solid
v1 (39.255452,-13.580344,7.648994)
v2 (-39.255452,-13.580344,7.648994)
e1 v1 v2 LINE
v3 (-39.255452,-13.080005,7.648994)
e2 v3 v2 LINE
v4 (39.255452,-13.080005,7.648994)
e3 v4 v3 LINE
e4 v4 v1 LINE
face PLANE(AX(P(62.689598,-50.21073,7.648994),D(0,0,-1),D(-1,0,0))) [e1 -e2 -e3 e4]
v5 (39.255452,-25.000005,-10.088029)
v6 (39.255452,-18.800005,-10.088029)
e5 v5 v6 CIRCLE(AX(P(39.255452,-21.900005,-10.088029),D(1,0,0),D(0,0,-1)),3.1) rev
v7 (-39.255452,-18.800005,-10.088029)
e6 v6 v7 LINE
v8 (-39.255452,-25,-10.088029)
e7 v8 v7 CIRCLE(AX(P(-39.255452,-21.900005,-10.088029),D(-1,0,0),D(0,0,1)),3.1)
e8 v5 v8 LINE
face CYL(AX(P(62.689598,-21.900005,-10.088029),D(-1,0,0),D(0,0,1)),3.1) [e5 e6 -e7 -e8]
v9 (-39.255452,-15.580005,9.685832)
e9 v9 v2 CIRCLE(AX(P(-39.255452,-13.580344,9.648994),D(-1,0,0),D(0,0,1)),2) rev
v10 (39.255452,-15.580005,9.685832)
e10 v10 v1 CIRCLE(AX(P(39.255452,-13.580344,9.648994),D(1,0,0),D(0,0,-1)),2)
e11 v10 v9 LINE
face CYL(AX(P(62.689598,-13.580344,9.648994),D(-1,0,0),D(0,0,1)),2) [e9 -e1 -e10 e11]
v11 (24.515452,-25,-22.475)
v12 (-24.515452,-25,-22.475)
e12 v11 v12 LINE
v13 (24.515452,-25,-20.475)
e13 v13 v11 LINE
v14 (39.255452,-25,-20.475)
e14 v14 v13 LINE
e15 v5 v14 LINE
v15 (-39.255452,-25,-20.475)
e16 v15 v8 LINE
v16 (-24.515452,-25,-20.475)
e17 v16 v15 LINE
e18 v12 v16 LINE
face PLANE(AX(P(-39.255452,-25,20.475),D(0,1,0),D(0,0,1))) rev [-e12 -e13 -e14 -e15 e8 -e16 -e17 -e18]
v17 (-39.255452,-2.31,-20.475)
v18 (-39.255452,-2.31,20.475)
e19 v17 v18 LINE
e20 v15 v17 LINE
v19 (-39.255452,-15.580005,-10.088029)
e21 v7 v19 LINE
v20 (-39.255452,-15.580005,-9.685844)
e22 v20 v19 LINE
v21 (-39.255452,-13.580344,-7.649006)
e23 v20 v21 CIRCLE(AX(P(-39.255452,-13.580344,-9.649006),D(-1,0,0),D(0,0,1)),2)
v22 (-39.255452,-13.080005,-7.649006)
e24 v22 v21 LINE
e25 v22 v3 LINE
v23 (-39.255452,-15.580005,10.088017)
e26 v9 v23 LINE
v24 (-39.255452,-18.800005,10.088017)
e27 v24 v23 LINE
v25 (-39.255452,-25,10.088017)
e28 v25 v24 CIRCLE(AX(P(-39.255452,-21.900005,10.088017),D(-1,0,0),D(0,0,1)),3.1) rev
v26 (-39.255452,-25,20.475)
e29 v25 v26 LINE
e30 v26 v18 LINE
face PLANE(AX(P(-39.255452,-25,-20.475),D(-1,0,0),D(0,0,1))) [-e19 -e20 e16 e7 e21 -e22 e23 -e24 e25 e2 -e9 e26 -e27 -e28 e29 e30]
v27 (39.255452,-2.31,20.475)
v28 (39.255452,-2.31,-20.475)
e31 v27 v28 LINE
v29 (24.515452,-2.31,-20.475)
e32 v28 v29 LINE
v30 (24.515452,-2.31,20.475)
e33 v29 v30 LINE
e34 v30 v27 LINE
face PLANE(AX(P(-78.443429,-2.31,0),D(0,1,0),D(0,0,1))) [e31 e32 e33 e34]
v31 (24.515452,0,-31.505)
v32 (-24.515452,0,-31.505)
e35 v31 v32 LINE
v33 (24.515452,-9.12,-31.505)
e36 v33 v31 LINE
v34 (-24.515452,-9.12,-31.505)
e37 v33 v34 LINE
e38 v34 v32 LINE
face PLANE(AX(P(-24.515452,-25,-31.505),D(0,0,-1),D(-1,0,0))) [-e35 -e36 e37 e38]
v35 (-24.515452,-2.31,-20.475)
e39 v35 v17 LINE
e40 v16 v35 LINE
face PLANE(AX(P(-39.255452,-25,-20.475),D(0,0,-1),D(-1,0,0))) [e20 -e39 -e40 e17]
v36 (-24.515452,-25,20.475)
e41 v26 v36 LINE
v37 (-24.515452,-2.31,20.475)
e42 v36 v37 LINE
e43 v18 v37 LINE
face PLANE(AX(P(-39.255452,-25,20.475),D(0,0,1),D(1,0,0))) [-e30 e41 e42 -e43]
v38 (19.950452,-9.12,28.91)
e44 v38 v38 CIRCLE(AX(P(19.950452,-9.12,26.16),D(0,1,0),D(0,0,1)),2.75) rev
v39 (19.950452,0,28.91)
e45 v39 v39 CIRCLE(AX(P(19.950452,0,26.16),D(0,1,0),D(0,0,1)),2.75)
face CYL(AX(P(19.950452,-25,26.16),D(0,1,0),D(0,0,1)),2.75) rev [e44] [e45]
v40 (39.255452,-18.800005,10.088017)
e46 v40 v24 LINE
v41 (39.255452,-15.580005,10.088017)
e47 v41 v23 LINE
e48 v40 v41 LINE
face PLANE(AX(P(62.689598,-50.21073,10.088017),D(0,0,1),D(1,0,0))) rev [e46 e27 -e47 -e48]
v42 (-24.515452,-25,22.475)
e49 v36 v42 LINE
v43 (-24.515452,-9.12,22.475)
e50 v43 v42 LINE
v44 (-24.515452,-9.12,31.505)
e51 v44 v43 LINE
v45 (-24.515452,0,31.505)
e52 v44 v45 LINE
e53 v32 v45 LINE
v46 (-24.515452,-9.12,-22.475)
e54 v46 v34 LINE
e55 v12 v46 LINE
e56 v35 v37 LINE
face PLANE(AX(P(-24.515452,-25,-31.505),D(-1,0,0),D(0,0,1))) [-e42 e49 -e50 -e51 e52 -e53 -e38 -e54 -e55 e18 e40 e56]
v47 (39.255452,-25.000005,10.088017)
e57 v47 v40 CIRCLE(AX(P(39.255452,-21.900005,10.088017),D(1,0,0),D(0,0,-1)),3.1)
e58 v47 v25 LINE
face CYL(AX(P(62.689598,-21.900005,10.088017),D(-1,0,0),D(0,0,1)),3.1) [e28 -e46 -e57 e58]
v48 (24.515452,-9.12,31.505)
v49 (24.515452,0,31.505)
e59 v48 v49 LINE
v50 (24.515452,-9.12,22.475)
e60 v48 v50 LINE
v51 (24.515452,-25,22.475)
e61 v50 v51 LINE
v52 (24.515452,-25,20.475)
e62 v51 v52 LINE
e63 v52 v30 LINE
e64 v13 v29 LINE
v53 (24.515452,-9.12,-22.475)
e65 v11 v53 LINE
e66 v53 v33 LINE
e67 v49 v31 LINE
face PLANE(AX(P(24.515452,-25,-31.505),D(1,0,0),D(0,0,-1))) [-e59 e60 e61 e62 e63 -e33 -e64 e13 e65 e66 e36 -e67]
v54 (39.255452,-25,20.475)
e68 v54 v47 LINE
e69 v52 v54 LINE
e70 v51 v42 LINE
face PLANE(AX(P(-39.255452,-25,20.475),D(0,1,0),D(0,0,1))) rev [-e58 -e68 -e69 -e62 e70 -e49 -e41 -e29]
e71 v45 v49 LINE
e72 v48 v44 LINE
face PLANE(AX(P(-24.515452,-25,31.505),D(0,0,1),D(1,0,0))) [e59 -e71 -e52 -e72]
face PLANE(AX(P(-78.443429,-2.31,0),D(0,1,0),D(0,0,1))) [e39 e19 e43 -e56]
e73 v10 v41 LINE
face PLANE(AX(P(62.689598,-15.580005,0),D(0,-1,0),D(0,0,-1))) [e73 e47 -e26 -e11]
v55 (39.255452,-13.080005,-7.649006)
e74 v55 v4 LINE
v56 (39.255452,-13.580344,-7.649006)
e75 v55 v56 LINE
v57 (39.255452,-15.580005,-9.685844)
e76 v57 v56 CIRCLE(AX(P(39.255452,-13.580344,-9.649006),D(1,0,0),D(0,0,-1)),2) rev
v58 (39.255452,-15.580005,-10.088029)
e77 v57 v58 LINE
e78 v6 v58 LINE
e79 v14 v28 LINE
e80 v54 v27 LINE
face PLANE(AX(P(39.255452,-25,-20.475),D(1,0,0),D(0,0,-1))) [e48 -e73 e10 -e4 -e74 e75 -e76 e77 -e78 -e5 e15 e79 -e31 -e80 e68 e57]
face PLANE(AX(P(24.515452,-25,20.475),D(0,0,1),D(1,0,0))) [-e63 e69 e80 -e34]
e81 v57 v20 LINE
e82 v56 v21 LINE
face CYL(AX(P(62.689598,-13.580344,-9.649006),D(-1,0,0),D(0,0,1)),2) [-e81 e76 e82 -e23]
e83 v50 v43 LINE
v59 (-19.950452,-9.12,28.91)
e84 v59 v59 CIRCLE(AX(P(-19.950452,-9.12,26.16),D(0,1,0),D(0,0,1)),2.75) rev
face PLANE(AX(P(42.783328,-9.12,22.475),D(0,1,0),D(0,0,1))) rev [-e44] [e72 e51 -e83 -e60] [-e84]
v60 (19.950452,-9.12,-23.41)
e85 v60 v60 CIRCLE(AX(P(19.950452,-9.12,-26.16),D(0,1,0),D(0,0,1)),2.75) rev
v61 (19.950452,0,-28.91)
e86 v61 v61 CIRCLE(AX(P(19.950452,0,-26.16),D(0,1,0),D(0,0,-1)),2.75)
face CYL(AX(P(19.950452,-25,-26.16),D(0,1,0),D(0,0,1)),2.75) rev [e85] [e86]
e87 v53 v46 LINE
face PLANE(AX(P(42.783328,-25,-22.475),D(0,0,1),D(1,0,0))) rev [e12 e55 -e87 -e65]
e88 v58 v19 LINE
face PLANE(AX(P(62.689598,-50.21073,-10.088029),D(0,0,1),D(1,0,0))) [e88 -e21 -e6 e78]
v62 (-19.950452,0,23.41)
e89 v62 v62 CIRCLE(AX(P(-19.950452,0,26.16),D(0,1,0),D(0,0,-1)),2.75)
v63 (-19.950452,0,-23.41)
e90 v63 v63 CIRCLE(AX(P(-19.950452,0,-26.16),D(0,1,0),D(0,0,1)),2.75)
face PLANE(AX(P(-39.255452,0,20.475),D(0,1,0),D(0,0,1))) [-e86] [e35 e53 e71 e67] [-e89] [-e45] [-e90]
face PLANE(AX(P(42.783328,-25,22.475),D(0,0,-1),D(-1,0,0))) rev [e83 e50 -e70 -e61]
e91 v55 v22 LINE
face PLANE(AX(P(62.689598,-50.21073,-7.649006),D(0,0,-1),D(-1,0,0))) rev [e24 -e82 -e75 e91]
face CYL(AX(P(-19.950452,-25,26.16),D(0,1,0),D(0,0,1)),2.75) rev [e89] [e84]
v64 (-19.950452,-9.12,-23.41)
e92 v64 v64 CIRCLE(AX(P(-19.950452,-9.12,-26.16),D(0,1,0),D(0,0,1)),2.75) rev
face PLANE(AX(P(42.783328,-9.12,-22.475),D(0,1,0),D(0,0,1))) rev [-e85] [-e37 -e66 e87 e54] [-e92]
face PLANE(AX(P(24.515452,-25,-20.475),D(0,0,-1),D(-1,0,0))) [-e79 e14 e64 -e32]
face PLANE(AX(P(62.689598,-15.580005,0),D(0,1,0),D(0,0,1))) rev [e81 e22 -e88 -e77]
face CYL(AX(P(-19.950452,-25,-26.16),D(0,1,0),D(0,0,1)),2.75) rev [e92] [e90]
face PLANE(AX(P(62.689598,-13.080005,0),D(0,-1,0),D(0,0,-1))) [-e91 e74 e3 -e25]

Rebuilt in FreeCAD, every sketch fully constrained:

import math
import FreeCAD as App
import Part
import Sketcher

V = App.Vector
Q = App.Units.Quantity

doc = App.newDocument("Part")
params = doc.addObject("Spreadsheet::Sheet", "Params")
for row, (alias, value) in enumerate([
    ("sketch1_width", "14.74 mm"),
    ("sketch1_height", "11.03 mm"),
    ("sketch1_height2", "40.95 mm"),
    ("pad1_length", "25 mm"),
    ("sketch2_diameter", "5.5 mm"),
    ("pocket1_length", "25 mm"),
    ("sketch3_width", "14.74 mm"),
    ("sketch3_height", "40.95 mm"),
    ("pocket2_length", "2.31 mm"),
    ("sketch4_width", "15.88 mm"),
    ("sketch4_height", "9.03 mm"),
    ("pocket3_length", "49.030903 mm"),
    ("sketch5_radius", "2 mm"),
    ("sketch5_radius2", "3.1 mm"),
    ("sketch5_width", "3.22 mm"),
    ("pocket4_length", "78.510903 mm"),
], start=1):
    params.set(f"A{row}", alias)
    params.set(f"B{row}", "=" + value)
    params.setAlias(f"B{row}", alias)

body = doc.addObject("PartDesign::Body", "Body")

# Sketch on XZ plane
sketch1 = doc.addObject("Sketcher::SketchObject", "Sketch")
body.addObject(sketch1)
sketch1.AttachmentSupport = (doc.XZ_Plane, [""])
sketch1.MapMode = "FlatFace"
sketch1.addGeometry([
    Part.LineSegment(V(-25, 20, 0), V(-25, 32, 0)),  # 0
    Part.LineSegment(V(-25, 32, 0), V(25, 32, 0)),  # 1
    Part.LineSegment(V(25, 32, 0), V(25, 20, 0)),  # 2
    Part.LineSegment(V(25, 20, 0), V(39, 20, 0)),  # 3
    Part.LineSegment(V(39, 20, 0), V(39, -20, 0)),  # 4
    Part.LineSegment(V(39, -20, 0), V(25, -20, 0)),  # 5
    Part.LineSegment(V(25, -20, 0), V(25, -32, 0)),  # 6
    Part.LineSegment(V(25, -32, 0), V(-25, -32, 0)),  # 7
    Part.LineSegment(V(-25, -32, 0), V(-25, -20, 0)),  # 8
    Part.LineSegment(V(-25, -20, 0), V(-39, -20, 0)),  # 9
    Part.LineSegment(V(-39, -20, 0), V(-39, 20, 0)),  # 10
    Part.LineSegment(V(-39, 20, 0), V(-25, 20, 0)),  # 11
], False)
sketch1.addConstraint([
    Sketcher.Constraint("Coincident", 0, 2, 1, 1),
    Sketcher.Constraint("Coincident", 1, 2, 2, 1),
    Sketcher.Constraint("Coincident", 2, 2, 3, 1),
    Sketcher.Constraint("Coincident", 3, 2, 4, 1),
    Sketcher.Constraint("Coincident", 4, 2, 5, 1),
    Sketcher.Constraint("Coincident", 5, 2, 6, 1),
    Sketcher.Constraint("Coincident", 6, 2, 7, 1),
    Sketcher.Constraint("Coincident", 7, 2, 8, 1),
    Sketcher.Constraint("Coincident", 8, 2, 9, 1),
    Sketcher.Constraint("Coincident", 9, 2, 10, 1),
    Sketcher.Constraint("Coincident", 10, 2, 11, 1),
    Sketcher.Constraint("Coincident", 11, 2, 0, 1),
    Sketcher.Constraint("Vertical", 0),
    Sketcher.Constraint("Horizontal", 1),
    Sketcher.Constraint("Vertical", 2),
    Sketcher.Constraint("Horizontal", 3),
    Sketcher.Constraint("Vertical", 4),
    Sketcher.Constraint("Horizontal", 5),
    Sketcher.Constraint("Vertical", 6),
    Sketcher.Constraint("Horizontal", 7),
    Sketcher.Constraint("Vertical", 8),
    Sketcher.Constraint("Horizontal", 9),
    Sketcher.Constraint("Vertical", 10),
    Sketcher.Constraint("Horizontal", 11),
    Sketcher.Constraint("Symmetric", 0, 2, 6, 2, -1, 1),
    Sketcher.Constraint("Symmetric", 2, 2, 8, 2, -1, 1),
    Sketcher.Constraint("Symmetric", 4, 2, 10, 2, -1, 1),
    Sketcher.Constraint("Symmetric", 5, 2, 8, 2, -2),
    Sketcher.Constraint("DistanceX", 3, 1, 3, 2, Q("14.74 mm")),
    Sketcher.Constraint("DistanceY", 0, 1, 0, 2, Q("11.03 mm")),
    Sketcher.Constraint("DistanceY", 4, 2, 4, 1, Q("40.95 mm")),
    Sketcher.Constraint("DistanceX", 1, 1, 1, 2, Q("49.030903 mm")),
])
sketch1.setExpression("Constraints[28]", "Params.sketch1_width")
sketch1.setExpression("Constraints[29]", "Params.sketch1_height")
sketch1.setExpression("Constraints[30]", "Params.sketch1_height2")
pad1 = doc.addObject("PartDesign::Pad", "Pad")
body.addObject(pad1)
pad1.Profile = sketch1
pad1.setExpression("Length", "Params.pad1_length")

# Sketch on XZ plane
sketch2 = doc.addObject("Sketcher::SketchObject", "Sketch001")
body.addObject(sketch2)
sketch2.AttachmentSupport = (doc.XZ_Plane, [""])
sketch2.MapMode = "FlatFace"
sketch2.addGeometry([
    Part.Circle(V(-20, -26.2, 0), V(0, 0, 1), 2.8),
    Part.Circle(V(20, -26.2, 0), V(0, 0, 1), 2.8),
    Part.Circle(V(20, 26.2, 0), V(0, 0, 1), 2.8),
    Part.Circle(V(-20, 26.2, 0), V(0, 0, 1), 2.8),
], False)
sketch2.addConstraint([
    Sketcher.Constraint("Equal", 0, 1),
    Sketcher.Constraint("Equal", 1, 2),
    Sketcher.Constraint("Equal", 2, 3),
    Sketcher.Constraint("Symmetric", 0, 3, 2, 3, -1, 1),
    Sketcher.Constraint("Symmetric", 1, 3, 3, 3, -1, 1),
    Sketcher.Constraint("Symmetric", 0, 3, 1, 3, -2),
    Sketcher.Constraint("Diameter", 0, Q("5.5 mm")),
    Sketcher.Constraint("DistanceY", 0, 3, -1, 1, Q("26.16 mm")),
    Sketcher.Constraint("DistanceX", 0, 3, -1, 1, Q("19.950452 mm")),
])
sketch2.setExpression("Constraints[6]", "Params.sketch2_diameter")
pocket1 = doc.addObject("PartDesign::Pocket", "Pocket")
body.addObject(pocket1)
pocket1.Profile = sketch2
pocket1.setExpression("Length", "Params.pocket1_length")
pocket1.Reversed = True

# Sketch on XZ plane
sketch3 = doc.addObject("Sketcher::SketchObject", "Sketch002")
body.addObject(sketch3)
sketch3.AttachmentSupport = (doc.XZ_Plane, [""])
sketch3.MapMode = "FlatFace"
sketch3.addGeometry([
    Part.LineSegment(V(25, -20, 0), V(25, 20, 0)),  # 0
    Part.LineSegment(V(25, 20, 0), V(39, 20, 0)),  # 1
    Part.LineSegment(V(39, 20, 0), V(39, -20, 0)),  # 2
    Part.LineSegment(V(39, -20, 0), V(25, -20, 0)),  # 3
    Part.LineSegment(V(-39, -20, 0), V(-39, 20, 0)),  # 4
    Part.LineSegment(V(-39, 20, 0), V(-25, 20, 0)),  # 5
    Part.LineSegment(V(-25, 20, 0), V(-25, -20, 0)),  # 6
    Part.LineSegment(V(-25, -20, 0), V(-39, -20, 0)),  # 7
], False)
sketch3.addConstraint([
    Sketcher.Constraint("Coincident", 0, 2, 1, 1),
    Sketcher.Constraint("Coincident", 1, 2, 2, 1),
    Sketcher.Constraint("Coincident", 2, 2, 3, 1),
    Sketcher.Constraint("Coincident", 3, 2, 0, 1),
    Sketcher.Constraint("Coincident", 4, 2, 5, 1),
    Sketcher.Constraint("Coincident", 5, 2, 6, 1),
    Sketcher.Constraint("Coincident", 6, 2, 7, 1),
    Sketcher.Constraint("Coincident", 7, 2, 4, 1),
    Sketcher.Constraint("Vertical", 0),
    Sketcher.Constraint("Horizontal", 1),
    Sketcher.Constraint("Vertical", 2),
    Sketcher.Constraint("Horizontal", 3),
    Sketcher.Constraint("Vertical", 4),
    Sketcher.Constraint("Horizontal", 5),
    Sketcher.Constraint("Vertical", 6),
    Sketcher.Constraint("Horizontal", 7),
    Sketcher.Constraint("Symmetric", 2, 2, 4, 2, -1, 1),
    Sketcher.Constraint("Symmetric", 0, 2, 6, 2, -1, 1),
    Sketcher.Constraint("Horizontal", 1, 2, 4, 2),
    Sketcher.Constraint("DistanceX", 1, 1, 1, 2, Q("14.74 mm")),
    Sketcher.Constraint("DistanceY", 0, 1, 0, 2, Q("40.95 mm")),
    Sketcher.Constraint("DistanceX", -1, 1, 0, 2, Q("24.515452 mm")),
])
sketch3.setExpression("Constraints[19]", "Params.sketch3_width")
sketch3.setExpression("Constraints[20]", "Params.sketch3_height")
pocket2 = doc.addObject("PartDesign::Pocket", "Pocket001")
body.addObject(pocket2)
pocket2.Profile = sketch3
pocket2.setExpression("Length", "Params.pocket2_length")
pocket2.Reversed = True

# Sketch on YZ plane
sketch4 = doc.addObject("Sketcher::SketchObject", "Sketch003")
body.addObject(sketch4)
sketch4.AttachmentSupport = (doc.YZ_Plane, [""])
sketch4.MapMode = "FlatFace"
sketch4.AttachmentOffset = App.Placement(V(0, 0, 24.515451), App.Rotation())
sketch4.addGeometry([
    Part.LineSegment(V(-9, -32, 0), V(-25, -32, 0)),  # 0
    Part.LineSegment(V(-25, -32, 0), V(-25, -22, 0)),  # 1
    Part.LineSegment(V(-25, -22, 0), V(-9, -22, 0)),  # 2
    Part.LineSegment(V(-9, -22, 0), V(-9, -32, 0)),  # 3
    Part.LineSegment(V(-9, 22, 0), V(-25, 22, 0)),  # 4
    Part.LineSegment(V(-25, 22, 0), V(-25, 32, 0)),  # 5
    Part.LineSegment(V(-25, 32, 0), V(-9, 32, 0)),  # 6
    Part.LineSegment(V(-9, 32, 0), V(-9, 22, 0)),  # 7
], False)
sketch4.addConstraint([
    Sketcher.Constraint("Coincident", 0, 2, 1, 1),
    Sketcher.Constraint("Coincident", 1, 2, 2, 1),
    Sketcher.Constraint("Coincident", 2, 2, 3, 1),
    Sketcher.Constraint("Coincident", 3, 2, 0, 1),
    Sketcher.Constraint("Coincident", 4, 2, 5, 1),
    Sketcher.Constraint("Coincident", 5, 2, 6, 1),
    Sketcher.Constraint("Coincident", 6, 2, 7, 1),
    Sketcher.Constraint("Coincident", 7, 2, 4, 1),
    Sketcher.Constraint("Horizontal", 0),
    Sketcher.Constraint("Vertical", 1),
    Sketcher.Constraint("Horizontal", 2),
    Sketcher.Constraint("Vertical", 3),
    Sketcher.Constraint("Horizontal", 4),
    Sketcher.Constraint("Vertical", 5),
    Sketcher.Constraint("Horizontal", 6),
    Sketcher.Constraint("Vertical", 7),
    Sketcher.Constraint("Symmetric", 1, 2, 4, 2, -1),
    Sketcher.Constraint("Symmetric", 3, 2, 6, 2, -1),
    Sketcher.Constraint("DistanceX", 0, 2, -1, 1, Q("25 mm")),
    Sketcher.Constraint("DistanceX", 0, 2, 0, 1, Q("15.88 mm")),
    Sketcher.Constraint("DistanceY", 1, 1, 1, 2, Q("9.03 mm")),
    Sketcher.Constraint("DistanceY", 1, 2, 4, 2, Q("44.95 mm")),
])
sketch4.setExpression("Constraints[19]", "Params.sketch4_width")
sketch4.setExpression("Constraints[20]", "Params.sketch4_height")
pocket3 = doc.addObject("PartDesign::Pocket", "Pocket002")
body.addObject(pocket3)
pocket3.Profile = sketch4
pocket3.setExpression("Length", "Params.pocket3_length")

# Sketch on YZ plane
sketch5 = doc.addObject("Sketcher::SketchObject", "Sketch004")
body.addObject(sketch5)
sketch5.AttachmentSupport = (doc.YZ_Plane, [""])
sketch5.MapMode = "FlatFace"
sketch5.AttachmentOffset = App.Placement(V(0, 0, -39.255452), App.Rotation())
sketch5.addGeometry([
    Part.LineSegment(V(-25, -10.09, 0), V(-25, 10.09, 0)),  # 0
    Part.ArcOfCircle(Part.Circle(V(-21.9, 10.09, 0), V(0, 0, 1), 3.1), math.radians(180), math.radians(360)),  # 1
    Part.LineSegment(V(-18.8, 10.09, 0), V(-15.58, 10.09, 0)),  # 2
    Part.LineSegment(V(-15.58, 10.09, 0), V(-15.58, 9.69, 0)),  # 3
    Part.ArcOfCircle(Part.Circle(V(-13.58, 9.65, 0), V(0, 0, 1), 2), math.radians(179), math.radians(270)),  # 4
    Part.LineSegment(V(-13.58, 7.65, 0), V(-13.08, 7.65, 0)),  # 5
    Part.LineSegment(V(-13.08, 7.65, 0), V(-13.08, -7.65, 0)),  # 6
    Part.LineSegment(V(-13.08, -7.65, 0), V(-13.58, -7.65, 0)),  # 7
    Part.ArcOfCircle(Part.Circle(V(-13.58, -9.65, 0), V(0, 0, 1), 2), math.radians(90), math.radians(181)),  # 8
    Part.LineSegment(V(-15.58, -9.69, 0), V(-15.58, -10.09, 0)),  # 9
    Part.LineSegment(V(-15.58, -10.09, 0), V(-18.8, -10.09, 0)),  # 10
    Part.ArcOfCircle(Part.Circle(V(-21.9, -10.09, 0), V(0, 0, 1), 3.1), math.radians(0), math.radians(180)),  # 11
], False)
sketch5.addConstraint([
    Sketcher.Constraint("Tangent", 0, 2, 1, 1),
    Sketcher.Constraint("Coincident", 1, 2, 2, 1),
    Sketcher.Constraint("Coincident", 2, 2, 3, 1),
    Sketcher.Constraint("Coincident", 3, 2, 4, 1),
    Sketcher.Constraint("Tangent", 4, 2, 5, 1),
    Sketcher.Constraint("Coincident", 5, 2, 6, 1),
    Sketcher.Constraint("Coincident", 6, 2, 7, 1),
    Sketcher.Constraint("Tangent", 7, 2, 8, 1),
    Sketcher.Constraint("Coincident", 8, 2, 9, 1),
    Sketcher.Constraint("Coincident", 9, 2, 10, 1),
    Sketcher.Constraint("Coincident", 10, 2, 11, 1),
    Sketcher.Constraint("Tangent", 11, 2, 0, 1),
    Sketcher.Constraint("Vertical", 0),
    Sketcher.Constraint("Horizontal", 2),
    Sketcher.Constraint("Vertical", 3),
    Sketcher.Constraint("Horizontal", 5),
    Sketcher.Constraint("Vertical", 6),
    Sketcher.Constraint("Horizontal", 7),
    Sketcher.Constraint("Vertical", 9),
    Sketcher.Constraint("Horizontal", 10),
    Sketcher.Constraint("Equal", 4, 8),
    Sketcher.Constraint("Equal", 1, 11),
    Sketcher.Constraint("Horizontal", 0, 2, 1, 2),
    Sketcher.Constraint("Horizontal", 11, 3, 9, 2),
    Sketcher.Constraint("Vertical", 4, 3, 8, 3),
    Sketcher.Constraint("Vertical", 3, 2, 8, 2),
    Sketcher.Constraint("Equal", 3, 9),
    Sketcher.Constraint("Radius", 4, Q("2 mm")),
    Sketcher.Constraint("Radius", 1, Q("3.1 mm")),
    Sketcher.Constraint("DistanceX", 2, 1, 2, 2, Q("3.22 mm")),
    Sketcher.Constraint("DistanceX", 3, 2, 5, 2, Q("2.5 mm")),
    Sketcher.Constraint("DistanceY", 6, 2, 6, 1, Q("15.298 mm")),
    Sketcher.Constraint("DistanceX", 5, 1, 5, 2, Q("0.500339 mm")),
    Sketcher.Constraint("DistanceY", 0, 1, 0, 2, Q("20.176046 mm")),
    Sketcher.Constraint("DistanceY", 11, 3, -1, 1, Q("10.088029 mm")),
    Sketcher.Constraint("DistanceX", 1, 3, -1, 1, Q("21.900005 mm")),
])
sketch5.setExpression("Constraints[27]", "Params.sketch5_radius")
sketch5.setExpression("Constraints[28]", "Params.sketch5_radius2")
sketch5.setExpression("Constraints[29]", "Params.sketch5_width")
pocket4 = doc.addObject("PartDesign::Pocket", "Pocket003")
body.addObject(pocket4)
pocket4.Profile = sketch5
pocket4.setExpression("Length", "Params.pocket4_length")
pocket4.Reversed = True

doc.recompute()
